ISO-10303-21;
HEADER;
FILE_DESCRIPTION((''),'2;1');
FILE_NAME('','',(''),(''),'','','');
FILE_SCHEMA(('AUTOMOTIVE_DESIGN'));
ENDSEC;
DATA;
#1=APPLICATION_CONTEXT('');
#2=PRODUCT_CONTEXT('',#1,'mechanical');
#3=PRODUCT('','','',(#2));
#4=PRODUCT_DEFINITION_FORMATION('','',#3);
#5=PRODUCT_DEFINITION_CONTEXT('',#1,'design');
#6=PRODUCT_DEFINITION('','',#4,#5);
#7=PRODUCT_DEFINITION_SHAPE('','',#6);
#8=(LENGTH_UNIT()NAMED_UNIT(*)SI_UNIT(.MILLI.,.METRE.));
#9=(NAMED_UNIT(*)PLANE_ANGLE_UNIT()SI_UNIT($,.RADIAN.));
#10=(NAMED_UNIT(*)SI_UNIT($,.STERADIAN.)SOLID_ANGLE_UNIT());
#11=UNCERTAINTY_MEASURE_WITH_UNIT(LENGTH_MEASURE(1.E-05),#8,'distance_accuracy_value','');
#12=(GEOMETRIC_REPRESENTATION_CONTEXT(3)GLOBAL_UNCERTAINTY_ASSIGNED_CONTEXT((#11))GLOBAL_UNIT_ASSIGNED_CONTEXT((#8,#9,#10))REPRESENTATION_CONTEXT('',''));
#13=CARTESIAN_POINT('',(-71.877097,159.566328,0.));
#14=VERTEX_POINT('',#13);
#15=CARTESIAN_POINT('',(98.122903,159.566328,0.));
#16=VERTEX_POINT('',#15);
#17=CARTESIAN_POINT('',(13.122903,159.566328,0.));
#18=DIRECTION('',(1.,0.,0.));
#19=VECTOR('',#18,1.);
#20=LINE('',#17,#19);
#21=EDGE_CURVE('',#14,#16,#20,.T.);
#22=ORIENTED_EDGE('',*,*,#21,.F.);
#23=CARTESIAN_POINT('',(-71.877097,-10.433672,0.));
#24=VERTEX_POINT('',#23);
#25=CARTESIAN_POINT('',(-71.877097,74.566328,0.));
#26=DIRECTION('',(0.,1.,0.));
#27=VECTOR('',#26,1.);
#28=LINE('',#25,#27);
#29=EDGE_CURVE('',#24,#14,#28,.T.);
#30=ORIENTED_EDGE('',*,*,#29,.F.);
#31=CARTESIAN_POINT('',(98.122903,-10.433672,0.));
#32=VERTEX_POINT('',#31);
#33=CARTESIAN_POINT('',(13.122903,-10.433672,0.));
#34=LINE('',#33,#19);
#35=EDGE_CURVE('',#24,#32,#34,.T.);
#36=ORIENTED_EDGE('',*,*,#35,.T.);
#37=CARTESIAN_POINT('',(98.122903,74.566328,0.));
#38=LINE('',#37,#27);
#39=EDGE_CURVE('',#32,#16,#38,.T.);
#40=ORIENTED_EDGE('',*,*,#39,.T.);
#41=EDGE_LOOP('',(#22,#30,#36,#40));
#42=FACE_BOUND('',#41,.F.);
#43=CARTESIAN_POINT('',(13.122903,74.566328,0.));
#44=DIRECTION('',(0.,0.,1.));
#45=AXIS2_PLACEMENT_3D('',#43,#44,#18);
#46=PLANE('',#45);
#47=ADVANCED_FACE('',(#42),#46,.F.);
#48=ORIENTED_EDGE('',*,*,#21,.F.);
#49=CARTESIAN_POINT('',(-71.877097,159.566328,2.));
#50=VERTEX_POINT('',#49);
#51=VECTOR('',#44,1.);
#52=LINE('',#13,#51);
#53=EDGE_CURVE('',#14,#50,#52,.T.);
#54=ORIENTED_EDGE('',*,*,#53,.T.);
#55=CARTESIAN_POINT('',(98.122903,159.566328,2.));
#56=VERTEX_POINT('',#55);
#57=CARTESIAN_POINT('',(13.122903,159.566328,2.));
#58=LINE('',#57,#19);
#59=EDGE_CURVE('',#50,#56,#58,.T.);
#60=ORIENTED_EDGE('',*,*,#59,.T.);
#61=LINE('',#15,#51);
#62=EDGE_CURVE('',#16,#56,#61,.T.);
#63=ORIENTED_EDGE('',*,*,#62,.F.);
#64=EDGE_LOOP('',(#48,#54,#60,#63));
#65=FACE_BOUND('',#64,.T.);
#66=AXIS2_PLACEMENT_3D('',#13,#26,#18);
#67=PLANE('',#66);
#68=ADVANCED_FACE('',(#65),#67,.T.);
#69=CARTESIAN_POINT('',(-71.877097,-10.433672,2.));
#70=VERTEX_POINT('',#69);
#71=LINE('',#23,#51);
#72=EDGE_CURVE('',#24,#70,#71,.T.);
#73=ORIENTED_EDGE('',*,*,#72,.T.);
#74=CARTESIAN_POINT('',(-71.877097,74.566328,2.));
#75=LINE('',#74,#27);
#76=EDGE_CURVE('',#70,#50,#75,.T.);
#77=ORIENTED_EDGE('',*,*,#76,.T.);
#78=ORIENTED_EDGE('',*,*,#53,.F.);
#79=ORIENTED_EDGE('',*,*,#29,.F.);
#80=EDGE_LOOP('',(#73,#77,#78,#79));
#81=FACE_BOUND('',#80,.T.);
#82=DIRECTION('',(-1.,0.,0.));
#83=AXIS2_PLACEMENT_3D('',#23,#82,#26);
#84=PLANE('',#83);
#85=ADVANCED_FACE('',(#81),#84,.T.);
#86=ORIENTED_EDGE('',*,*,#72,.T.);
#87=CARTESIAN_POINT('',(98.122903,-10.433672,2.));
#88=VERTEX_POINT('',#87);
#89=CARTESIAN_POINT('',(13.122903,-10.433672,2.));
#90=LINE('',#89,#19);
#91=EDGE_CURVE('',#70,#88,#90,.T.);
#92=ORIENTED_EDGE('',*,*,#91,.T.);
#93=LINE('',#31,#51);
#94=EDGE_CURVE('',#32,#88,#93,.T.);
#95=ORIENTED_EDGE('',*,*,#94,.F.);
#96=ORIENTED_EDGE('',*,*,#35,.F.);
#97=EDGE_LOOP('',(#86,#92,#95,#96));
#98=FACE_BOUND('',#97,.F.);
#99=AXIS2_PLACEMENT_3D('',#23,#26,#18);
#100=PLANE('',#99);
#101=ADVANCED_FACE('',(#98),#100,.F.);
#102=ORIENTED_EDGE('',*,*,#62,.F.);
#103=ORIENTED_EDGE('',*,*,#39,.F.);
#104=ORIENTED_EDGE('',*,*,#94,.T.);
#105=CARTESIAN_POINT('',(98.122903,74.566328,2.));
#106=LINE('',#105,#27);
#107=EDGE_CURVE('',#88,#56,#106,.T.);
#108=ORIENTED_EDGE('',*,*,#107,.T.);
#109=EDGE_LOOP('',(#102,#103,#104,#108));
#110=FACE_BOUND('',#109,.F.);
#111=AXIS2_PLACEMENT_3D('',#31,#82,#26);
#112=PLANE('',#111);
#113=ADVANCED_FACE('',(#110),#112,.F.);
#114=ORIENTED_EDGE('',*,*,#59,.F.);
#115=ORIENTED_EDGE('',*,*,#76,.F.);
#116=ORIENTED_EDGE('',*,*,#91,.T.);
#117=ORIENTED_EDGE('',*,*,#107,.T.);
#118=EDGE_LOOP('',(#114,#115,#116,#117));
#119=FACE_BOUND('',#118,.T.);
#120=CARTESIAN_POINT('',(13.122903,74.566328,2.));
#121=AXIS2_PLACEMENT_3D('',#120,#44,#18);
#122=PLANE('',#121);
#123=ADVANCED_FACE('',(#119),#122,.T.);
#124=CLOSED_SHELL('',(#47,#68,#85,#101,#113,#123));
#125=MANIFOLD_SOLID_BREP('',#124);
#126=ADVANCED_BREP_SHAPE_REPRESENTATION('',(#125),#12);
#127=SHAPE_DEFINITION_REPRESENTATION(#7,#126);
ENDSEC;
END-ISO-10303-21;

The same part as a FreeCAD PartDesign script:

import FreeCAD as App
import Part
import Sketcher


def add_polygon(sketch, points):
    """Adds a closed chain of lines whose ends are joined by coincident constraints."""
    first, n = sketch.GeometryCount, len(points)
    for a, b in zip(points, points[1:] + points[:1]):
        sketch.addGeometry(Part.LineSegment(App.Vector(*a, 0), App.Vector(*b, 0)), False)
    for i in range(n):
        sketch.addConstraint(Sketcher.Constraint("Coincident", first + i, 2, first + (i + 1) % n, 1))

doc = App.newDocument("Part")
body = doc.addObject("PartDesign::Body", "Body")

sketch1 = body.newObject("Sketcher::SketchObject", "Sketch")
sketch1.AttachmentSupport = (doc.getObject("XY_Plane"), [""])
sketch1.MapMode = "FlatFace"
add_polygon(sketch1, [(-72, 160), (-72, -10), (98, -10), (98, 160)])
sketch1.addConstraint([
    Sketcher.Constraint("Vertical", 0),
    Sketcher.Constraint("Horizontal", 1),
    Sketcher.Constraint("Vertical", 2),
    Sketcher.Constraint("Horizontal", 3),
    Sketcher.Constraint("Equal", 3, 0),
    Sketcher.Constraint("DistanceX", 1, 1, 1, 2, 170.0),
    Sketcher.Constraint("DistanceY", -1, 1, 2, 2, 159.566328),
    Sketcher.Constraint("DistanceX", 0, 2, -1, 1, 71.877097),
])
pad1 = body.newObject("PartDesign::Pad", "Pad")
pad1.Profile = sketch1
pad1.Length = 2

doc.recompute()
